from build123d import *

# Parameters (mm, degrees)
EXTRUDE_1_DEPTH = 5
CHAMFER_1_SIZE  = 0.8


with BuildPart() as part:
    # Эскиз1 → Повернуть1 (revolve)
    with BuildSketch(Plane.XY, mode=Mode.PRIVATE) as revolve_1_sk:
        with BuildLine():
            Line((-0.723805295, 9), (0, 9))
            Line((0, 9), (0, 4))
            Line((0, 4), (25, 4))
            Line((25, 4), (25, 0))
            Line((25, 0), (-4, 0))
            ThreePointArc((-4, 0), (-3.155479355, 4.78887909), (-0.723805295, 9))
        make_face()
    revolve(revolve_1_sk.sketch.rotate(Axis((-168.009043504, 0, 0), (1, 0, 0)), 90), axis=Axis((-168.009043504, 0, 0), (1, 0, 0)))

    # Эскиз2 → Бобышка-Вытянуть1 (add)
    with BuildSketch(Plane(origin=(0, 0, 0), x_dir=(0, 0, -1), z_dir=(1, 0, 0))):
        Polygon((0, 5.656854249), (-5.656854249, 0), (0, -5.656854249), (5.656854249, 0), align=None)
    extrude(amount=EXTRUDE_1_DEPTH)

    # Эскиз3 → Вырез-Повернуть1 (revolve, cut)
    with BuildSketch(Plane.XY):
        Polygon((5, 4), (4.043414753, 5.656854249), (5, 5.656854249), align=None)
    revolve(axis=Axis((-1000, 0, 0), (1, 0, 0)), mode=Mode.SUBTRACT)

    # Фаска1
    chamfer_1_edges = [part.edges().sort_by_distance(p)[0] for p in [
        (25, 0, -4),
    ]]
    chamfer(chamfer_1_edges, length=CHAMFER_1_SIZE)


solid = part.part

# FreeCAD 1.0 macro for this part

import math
import FreeCAD as App
import Part
import Sketcher
from FreeCAD import Vector
Q = App.Units.Quantity


def edges_at(feature, points):
    """Names of the edges that pass closest to the given points."""
    edges = feature.Shape.Edges
    near = lambda p: min(range(len(edges)), key=lambda i: edges[i].distToShape(Part.Vertex(*p))[0])
    return sorted({f"Edge{near(p) + 1}" for p in points})

doc = App.newDocument("Part")
body = doc.addObject("PartDesign::Body", "Body")

# Sketch on XY plane
sketch1 = body.newObject("Sketcher::SketchObject", "Sketch")
sketch1.AttachmentSupport = (doc.getObject("XY_Plane"), [""])
sketch1.MapMode = "FlatFace"
sketch1.addGeometry([
    Part.LineSegment(Vector(0, 9, 0), Vector(-0.7, 9, 0)),  # 0
    Part.ArcOfCircle(Part.Circle(Vector(10, 0, 0), Vector(0, 0, 1), 14), math.radians(140), math.radians(180)),  # 1
    Part.LineSegment(Vector(-4, 0, 0), Vector(25, 0, 0)),  # 2
    Part.LineSegment(Vector(25, 0, 0), Vector(25, 4, 0)),  # 3
    Part.LineSegment(Vector(25, 4, 0), Vector(0, 4, 0)),  # 4
    Part.LineSegment(Vector(0, 4, 0), Vector(0, 9, 0)),  # 5
], False)
sketch1.addConstraint([
    Sketcher.Constraint("Coincident", 0, 2, 1, 1),
    Sketcher.Constraint("Coincident", 1, 2, 2, 1),
    Sketcher.Constraint("Coincident", 2, 2, 3, 1),
    Sketcher.Constraint("Coincident", 3, 2, 4, 1),
    Sketcher.Constraint("Coincident", 4, 2, 5, 1),
    Sketcher.Constraint("Coincident", 5, 2, 0, 1),
    Sketcher.Constraint("Horizontal", 0),
    Sketcher.Constraint("Horizontal", 2),
    Sketcher.Constraint("Vertical", 3),
    Sketcher.Constraint("Horizontal", 4),
    Sketcher.Constraint("Vertical", 5),
    Sketcher.Constraint("PointOnObject", 1, 3, -1),
    Sketcher.Constraint("PointOnObject", 1, 2, -1),
    Sketcher.Constraint("PointOnObject", 4, 2, -2),
    Sketcher.Constraint("Radius", 1, 14.0),
    Sketcher.Constraint("DistanceX", 2, 1, 2, 2, 29.0),
    Sketcher.Constraint("DistanceX", 4, 2, 4, 1, 25.0),
    Sketcher.Constraint("DistanceY", 3, 1, 3, 2, 4.0),
    Sketcher.Constraint("DistanceY", 5, 1, 5, 2, 5.0),
])
revolution = body.newObject("PartDesign::Revolution", "Revolution")
revolution.Profile = sketch1
revolution.ReferenceAxis = (sketch1, ["H_Axis"])
revolution.Angle = 360

# Sketch on YZ plane
sketch2 = body.newObject("Sketcher::SketchObject", "Sketch001")
sketch2.AttachmentSupport = (doc.getObject("YZ_Plane"), [""])
sketch2.MapMode = "FlatFace"
sketch2.addGeometry([
    Part.LineSegment(Vector(6, 0, 0), Vector(0, 6, 0)),
    Part.LineSegment(Vector(0, 6, 0), Vector(-6, 0, 0)),
    Part.LineSegment(Vector(-6, 0, 0), Vector(0, -6, 0)),
    Part.LineSegment(Vector(0, -6, 0), Vector(6, 0, 0)),
], False)
sketch2.addConstraint([
    Sketcher.Constraint("Coincident", 0, 2, 1, 1),
    Sketcher.Constraint("Coincident", 1, 2, 2, 1),
    Sketcher.Constraint("Coincident", 2, 2, 3, 1),
    Sketcher.Constraint("Coincident", 3, 2, 0, 1),
    Sketcher.Constraint("Symmetric", 0, 2, 2, 2, -1, 1),
    Sketcher.Constraint("Symmetric", 1, 2, 3, 2, -1, 1),
    Sketcher.Constraint("PointOnObject", 0, 2, -2),
    Sketcher.Constraint("PointOnObject", 1, 2, -1),
    Sketcher.Constraint("Perpendicular", 0, 1),
    Sketcher.Constraint("Distance", 0, 8.0),
])
pad1 = body.newObject("PartDesign::Pad", "Pad")
pad1.Profile = sketch2
pad1.Length = 5

# Sketch on XY plane
sketch3 = body.newObject("Sketcher::SketchObject", "Sketch002")
sketch3.AttachmentSupport = (doc.getObject("XY_Plane"), [""])
sketch3.MapMode = "FlatFace"
sketch3.addGeometry([
    Part.LineSegment(Vector(4, 5.7, 0), Vector(5, 4, 0)),
    Part.LineSegment(Vector(5, 4, 0), Vector(5, 5.7, 0)),
    Part.LineSegment(Vector(5, 5.7, 0), Vector(4, 5.7, 0)),
], False)
sketch3.addConstraint([
    Sketcher.Constraint("Coincident", 0, 2, 1, 1),
    Sketcher.Constraint("Coincident", 1, 2, 2, 1),
    Sketcher.Constraint("Coincident", 2, 2, 0, 1),
    Sketcher.Constraint("Vertical", 1),
    Sketcher.Constraint("Horizontal", 2),
    Sketcher.Constraint("Angle", 0, Q("-60 deg")),
    Sketcher.Constraint("DistanceX", -1, 1, 0, 2, 5.0),
    Sketcher.Constraint("DistanceY", -1, 1, 0, 2, 4.0),
    Sketcher.Constraint("Distance", 0, 1.91317),
])
groove = body.newObject("PartDesign::Groove", "Groove")
groove.Profile = sketch3
groove.ReferenceAxis = (sketch3, ["H_Axis"])
groove.Angle = 360
doc.recompute()

chamfer = body.newObject("PartDesign::Chamfer", "Chamfer")
chamfer.Base = (groove, edges_at(groove, [(25, 0, -4)]))
chamfer.Size = 0.8

doc.recompute()
